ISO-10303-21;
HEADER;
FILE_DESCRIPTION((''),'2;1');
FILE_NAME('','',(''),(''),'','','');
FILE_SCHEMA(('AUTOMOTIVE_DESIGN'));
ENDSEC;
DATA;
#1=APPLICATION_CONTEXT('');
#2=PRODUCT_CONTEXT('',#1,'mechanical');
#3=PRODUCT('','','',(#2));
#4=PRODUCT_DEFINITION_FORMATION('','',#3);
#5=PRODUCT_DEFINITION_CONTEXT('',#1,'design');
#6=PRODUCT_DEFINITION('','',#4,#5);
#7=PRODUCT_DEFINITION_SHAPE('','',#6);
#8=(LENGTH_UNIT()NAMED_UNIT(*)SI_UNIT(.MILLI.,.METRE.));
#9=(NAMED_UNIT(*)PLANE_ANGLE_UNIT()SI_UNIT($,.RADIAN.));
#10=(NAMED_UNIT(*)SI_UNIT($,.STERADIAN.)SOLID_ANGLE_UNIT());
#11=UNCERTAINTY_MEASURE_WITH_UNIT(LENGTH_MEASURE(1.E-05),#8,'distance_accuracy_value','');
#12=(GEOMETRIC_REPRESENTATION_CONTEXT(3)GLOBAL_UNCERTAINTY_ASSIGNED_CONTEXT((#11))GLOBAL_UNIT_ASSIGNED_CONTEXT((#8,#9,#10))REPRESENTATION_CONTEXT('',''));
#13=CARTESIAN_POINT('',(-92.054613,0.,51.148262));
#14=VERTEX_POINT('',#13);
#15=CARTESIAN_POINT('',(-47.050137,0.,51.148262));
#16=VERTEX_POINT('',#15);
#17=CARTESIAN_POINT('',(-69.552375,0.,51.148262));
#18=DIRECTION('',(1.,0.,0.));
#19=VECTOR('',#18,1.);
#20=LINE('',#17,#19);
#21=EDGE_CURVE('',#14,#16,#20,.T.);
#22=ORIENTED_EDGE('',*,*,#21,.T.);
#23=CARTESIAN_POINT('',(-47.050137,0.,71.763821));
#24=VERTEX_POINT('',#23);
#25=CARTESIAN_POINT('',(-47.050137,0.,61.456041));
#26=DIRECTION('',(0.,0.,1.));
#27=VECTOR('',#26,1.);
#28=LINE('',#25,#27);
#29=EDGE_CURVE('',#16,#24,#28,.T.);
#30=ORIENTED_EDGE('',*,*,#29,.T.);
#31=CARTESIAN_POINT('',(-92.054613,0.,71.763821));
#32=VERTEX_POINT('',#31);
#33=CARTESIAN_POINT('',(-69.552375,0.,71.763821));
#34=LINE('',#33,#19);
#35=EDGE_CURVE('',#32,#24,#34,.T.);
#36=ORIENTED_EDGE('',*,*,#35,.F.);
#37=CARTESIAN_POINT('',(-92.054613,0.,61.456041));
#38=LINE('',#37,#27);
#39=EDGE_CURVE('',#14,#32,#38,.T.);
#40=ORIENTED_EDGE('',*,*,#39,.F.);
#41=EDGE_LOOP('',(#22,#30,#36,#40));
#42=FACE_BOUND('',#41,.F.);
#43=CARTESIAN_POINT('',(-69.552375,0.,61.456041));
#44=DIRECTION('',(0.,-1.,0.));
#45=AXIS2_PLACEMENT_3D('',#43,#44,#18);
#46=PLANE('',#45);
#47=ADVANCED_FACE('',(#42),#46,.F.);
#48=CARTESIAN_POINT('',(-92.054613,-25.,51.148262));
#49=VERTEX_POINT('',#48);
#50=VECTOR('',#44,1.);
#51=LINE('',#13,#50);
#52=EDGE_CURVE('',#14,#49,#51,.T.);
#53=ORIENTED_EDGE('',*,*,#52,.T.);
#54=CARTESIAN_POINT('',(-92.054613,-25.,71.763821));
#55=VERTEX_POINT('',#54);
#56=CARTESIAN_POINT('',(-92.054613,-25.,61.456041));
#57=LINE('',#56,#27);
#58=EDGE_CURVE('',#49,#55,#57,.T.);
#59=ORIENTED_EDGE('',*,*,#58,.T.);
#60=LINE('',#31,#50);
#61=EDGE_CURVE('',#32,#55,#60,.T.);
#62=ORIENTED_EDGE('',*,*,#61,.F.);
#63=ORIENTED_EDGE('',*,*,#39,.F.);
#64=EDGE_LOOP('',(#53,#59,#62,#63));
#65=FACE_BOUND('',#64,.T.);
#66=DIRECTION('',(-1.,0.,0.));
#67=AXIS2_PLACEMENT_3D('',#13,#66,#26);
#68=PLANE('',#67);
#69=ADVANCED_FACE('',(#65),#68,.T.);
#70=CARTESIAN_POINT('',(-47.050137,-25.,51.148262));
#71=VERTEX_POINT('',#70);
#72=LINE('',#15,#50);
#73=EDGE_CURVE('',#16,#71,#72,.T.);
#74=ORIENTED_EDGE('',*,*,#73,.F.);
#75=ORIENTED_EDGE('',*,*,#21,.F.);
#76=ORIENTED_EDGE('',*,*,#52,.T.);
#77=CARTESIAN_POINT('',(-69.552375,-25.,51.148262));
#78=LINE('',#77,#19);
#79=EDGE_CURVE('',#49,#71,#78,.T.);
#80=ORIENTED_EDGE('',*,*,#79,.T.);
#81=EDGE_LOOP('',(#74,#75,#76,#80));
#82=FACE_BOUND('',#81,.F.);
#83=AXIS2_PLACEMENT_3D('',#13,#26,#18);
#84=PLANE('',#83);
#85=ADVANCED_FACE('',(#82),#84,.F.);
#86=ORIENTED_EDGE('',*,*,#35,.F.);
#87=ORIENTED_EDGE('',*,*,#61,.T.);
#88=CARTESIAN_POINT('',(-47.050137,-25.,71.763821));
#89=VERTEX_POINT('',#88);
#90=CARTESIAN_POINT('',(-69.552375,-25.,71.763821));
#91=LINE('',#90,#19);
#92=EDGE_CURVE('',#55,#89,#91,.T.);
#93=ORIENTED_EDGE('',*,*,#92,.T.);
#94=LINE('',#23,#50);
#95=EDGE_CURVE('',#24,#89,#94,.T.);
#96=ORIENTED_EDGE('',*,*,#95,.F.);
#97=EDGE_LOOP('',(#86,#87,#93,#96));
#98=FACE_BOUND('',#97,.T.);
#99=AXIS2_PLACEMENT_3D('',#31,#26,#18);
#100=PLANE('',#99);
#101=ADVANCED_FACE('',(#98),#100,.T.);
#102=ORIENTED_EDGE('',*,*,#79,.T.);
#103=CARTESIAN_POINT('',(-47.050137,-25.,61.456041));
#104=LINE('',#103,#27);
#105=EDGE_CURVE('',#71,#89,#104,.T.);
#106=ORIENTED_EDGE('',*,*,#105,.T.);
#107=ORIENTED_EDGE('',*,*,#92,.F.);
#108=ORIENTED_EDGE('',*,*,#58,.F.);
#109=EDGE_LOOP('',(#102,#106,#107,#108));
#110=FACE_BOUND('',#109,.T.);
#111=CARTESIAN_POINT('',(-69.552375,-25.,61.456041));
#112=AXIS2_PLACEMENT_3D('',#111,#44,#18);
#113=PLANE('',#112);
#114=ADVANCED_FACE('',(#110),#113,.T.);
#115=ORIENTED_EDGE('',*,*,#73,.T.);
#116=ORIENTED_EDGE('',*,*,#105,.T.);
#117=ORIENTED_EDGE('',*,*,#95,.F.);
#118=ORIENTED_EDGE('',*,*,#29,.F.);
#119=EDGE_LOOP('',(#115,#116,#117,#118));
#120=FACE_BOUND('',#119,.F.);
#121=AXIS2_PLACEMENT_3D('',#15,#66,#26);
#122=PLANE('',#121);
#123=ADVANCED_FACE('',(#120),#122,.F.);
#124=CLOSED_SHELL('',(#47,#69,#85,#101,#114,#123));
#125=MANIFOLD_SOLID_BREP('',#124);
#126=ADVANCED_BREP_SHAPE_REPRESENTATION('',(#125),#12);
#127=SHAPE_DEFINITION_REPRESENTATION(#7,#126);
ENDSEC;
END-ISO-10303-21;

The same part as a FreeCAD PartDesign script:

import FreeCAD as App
import Part
import Sketcher
from FreeCAD import Vector
Q = App.Units.Quantity


def add_polygon(sketch, points):
    """Adds a closed chain of lines whose ends are joined by coincident constraints."""
    first, n = sketch.GeometryCount, len(points)
    for a, b in zip(points, points[1:] + points[:1]):
        sketch.addGeometry(Part.LineSegment(App.Vector(*a, 0), App.Vector(*b, 0)), False)
    for i in range(n):
        sketch.addConstraint(Sketcher.Constraint("Coincident", first + i, 2, first + (i + 1) % n, 1))

doc = App.newDocument("Part")
body = doc.addObject("PartDesign::Body", "Body")

# Sketch on XZ plane
sketch1 = body.newObject("Sketcher::SketchObject", "Sketch")
sketch1.AttachmentSupport = (doc.getObject("XZ_Plane"), [""])
sketch1.MapMode = "FlatFace"
sketch1.addGeometry(Part.Circle(Vector(-136.474624, 8.383896, 0), Vector(0, 0, 1), 27.886481), False)
sketch1.addConstraint(Sketcher.Constraint("Diameter", 0, Q("55.772962 mm")))
sketch1.addConstraint(Sketcher.Constraint("DistanceX", 0, 3, -1, 1, Q("136.474624 mm")))
sketch1.addConstraint(Sketcher.Constraint("DistanceY", -1, 1, 0, 3, Q("8.383896 mm")))
pad1 = body.newObject("PartDesign::Pad", "Pad")
pad1.Profile = sketch1
pad1.Length = 25
body2 = doc.addObject("PartDesign::Body", "Body001")

# Sketch on XZ plane
sketch2 = body2.newObject("Sketcher::SketchObject", "Sketch001")
sketch2.AttachmentSupport = (doc.getObject("XZ_Plane001"), [""])
sketch2.MapMode = "FlatFace"
add_polygon(sketch2, [(-92.054613, 71.763821), (-92.054613, 51.148262), (-47.050137, 51.148262), (-47.050137, 71.763821)])  # lines 0-3
sketch2.addConstraint(Sketcher.Constraint("Vertical", 0))
sketch2.addConstraint(Sketcher.Constraint("Horizontal", 1))
sketch2.addConstraint(Sketcher.Constraint("Vertical", 2))
sketch2.addConstraint(Sketcher.Constraint("Horizontal", 3))
sketch2.addConstraint(Sketcher.Constraint("DistanceY", 0, 2, 0, 1, Q("20.615559 mm")))
sketch2.addConstraint(Sketcher.Constraint("DistanceX", 1, 1, 1, 2, Q("45.004476 mm")))
sketch2.addConstraint(Sketcher.Constraint("DistanceY", -1, 1, 0, 2, Q("51.148262 mm")))
sketch2.addConstraint(Sketcher.Constraint("DistanceX", 0, 2, -1, 1, Q("92.054613 mm")))
pad2 = body2.newObject("PartDesign::Pad", "Pad001")
pad2.Profile = sketch2
pad2.Length = 25
body.Visibility = False

doc.recompute()
